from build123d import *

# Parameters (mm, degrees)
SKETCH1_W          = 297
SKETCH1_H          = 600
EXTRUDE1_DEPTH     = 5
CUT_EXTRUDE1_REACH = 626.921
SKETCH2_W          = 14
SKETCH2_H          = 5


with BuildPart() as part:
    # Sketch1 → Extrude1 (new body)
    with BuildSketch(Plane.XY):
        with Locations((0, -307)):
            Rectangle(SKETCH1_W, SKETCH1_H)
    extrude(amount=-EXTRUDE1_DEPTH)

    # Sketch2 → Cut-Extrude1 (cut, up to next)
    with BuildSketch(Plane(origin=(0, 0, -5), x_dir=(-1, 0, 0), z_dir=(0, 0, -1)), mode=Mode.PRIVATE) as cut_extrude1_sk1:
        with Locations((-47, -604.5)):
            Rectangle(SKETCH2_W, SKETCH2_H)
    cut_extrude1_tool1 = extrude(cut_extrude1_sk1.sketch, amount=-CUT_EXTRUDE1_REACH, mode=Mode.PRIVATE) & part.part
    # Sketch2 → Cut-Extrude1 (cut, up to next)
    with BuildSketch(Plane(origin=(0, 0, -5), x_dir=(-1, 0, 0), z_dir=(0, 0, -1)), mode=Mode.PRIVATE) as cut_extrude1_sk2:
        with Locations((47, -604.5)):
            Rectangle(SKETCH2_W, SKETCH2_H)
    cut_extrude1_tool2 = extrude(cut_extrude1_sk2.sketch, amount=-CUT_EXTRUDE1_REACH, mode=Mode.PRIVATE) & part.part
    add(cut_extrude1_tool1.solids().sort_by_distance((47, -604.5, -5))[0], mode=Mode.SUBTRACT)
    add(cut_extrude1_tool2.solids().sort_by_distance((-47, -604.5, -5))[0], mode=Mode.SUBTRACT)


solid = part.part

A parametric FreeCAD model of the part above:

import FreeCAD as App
import Part
import Sketcher

V = App.Vector

doc = App.newDocument("Part")
body = doc.addObject("PartDesign::Body", "Body")

# Sketch on XY plane
sketch1 = body.newObject("Sketcher::SketchObject", "Sketch")
sketch1.AttachmentSupport = (doc.getObject("XY_Plane"), [""])
sketch1.MapMode = "FlatFace"
sketch1.addGeometry(Part.LineSegment(V(-148.5, -7, 0), V(-148.5, -607, 0)), False)
sketch1.addGeometry(Part.LineSegment(V(-148.5, -607, 0), V(148.5, -607, 0)), False)
sketch1.addGeometry(Part.LineSegment(V(148.5, -607, 0), V(148.5, -7, 0)), False)
sketch1.addGeometry(Part.LineSegment(V(148.5, -7, 0), V(-148.5, -7, 0)), False)
sketch1.addConstraint(Sketcher.Constraint("Coincident", 0, 2, 1, 1))
sketch1.addConstraint(Sketcher.Constraint("Coincident", 1, 2, 2, 1))
sketch1.addConstraint(Sketcher.Constraint("Coincident", 2, 2, 3, 1))
sketch1.addConstraint(Sketcher.Constraint("Coincident", 3, 2, 0, 1))
sketch1.addConstraint(Sketcher.Constraint("Vertical", 0))
sketch1.addConstraint(Sketcher.Constraint("Horizontal", 1))
sketch1.addConstraint(Sketcher.Constraint("Vertical", 2))
sketch1.addConstraint(Sketcher.Constraint("Horizontal", 3))
sketch1.addConstraint(Sketcher.Constraint("DistanceX", 1, 1, 1, 2, 297.0))
sketch1.addConstraint(Sketcher.Constraint("DistanceY", 0, 2, 0, 1, 600.0))
sketch1.addConstraint(Sketcher.Constraint("DistanceY", 0, 2, -1, 1, 607.0))
sketch1.addConstraint(Sketcher.Constraint("DistanceX", 0, 2, -1, 1, 148.5))
pad1 = body.newObject("PartDesign::Pad", "Pad")
pad1.Profile = sketch1
pad1.Length = 5
pad1.Reversed = True

# Sketch on XY plane
sketch2 = body.newObject("Sketcher::SketchObject", "Sketch001")
sketch2.AttachmentSupport = (doc.getObject("XY_Plane"), [""])
sketch2.MapMode = "FlatFace"
sketch2.AttachmentOffset = App.Placement(V(0, 0, -5), App.Rotation())
sketch2.addGeometry(Part.LineSegment(V(54, -602, 0), V(54, -607, 0)), False)
sketch2.addGeometry(Part.LineSegment(V(54, -607, 0), V(40, -607, 0)), False)
sketch2.addGeometry(Part.LineSegment(V(40, -607, 0), V(40, -602, 0)), False)
sketch2.addGeometry(Part.LineSegment(V(40, -602, 0), V(54, -602, 0)), False)
sketch2.addConstraint(Sketcher.Constraint("Coincident", 0, 2, 1, 1))
sketch2.addConstraint(Sketcher.Constraint("Coincident", 1, 2, 2, 1))
sketch2.addConstraint(Sketcher.Constraint("Coincident", 2, 2, 3, 1))
sketch2.addConstraint(Sketcher.Constraint("Coincident", 3, 2, 0, 1))
sketch2.addConstraint(Sketcher.Constraint("Vertical", 0))
sketch2.addConstraint(Sketcher.Constraint("Horizontal", 1))
sketch2.addConstraint(Sketcher.Constraint("Vertical", 2))
sketch2.addConstraint(Sketcher.Constraint("Horizontal", 3))
sketch2.addConstraint(Sketcher.Constraint("DistanceX", 1, 2, 1, 1, 14.0))
sketch2.addConstraint(Sketcher.Constraint("DistanceY", 0, 2, 0, 1, 5.0))
sketch2.addConstraint(Sketcher.Constraint("DistanceX", -1, 1, 0, 2, 54.0))
sketch2.addConstraint(Sketcher.Constraint("DistanceY", 0, 2, -1, 1, 607.0))
pocket1 = body.newObject("PartDesign::Pocket", "Pocket")
pocket1.Profile = sketch2
pocket1.Type = "UpToFirst"
pocket1.Reversed = True

# Sketch on XY plane
sketch3 = body.newObject("Sketcher::SketchObject", "Sketch002")
sketch3.AttachmentSupport = (doc.getObject("XY_Plane"), [""])
sketch3.MapMode = "FlatFace"
sketch3.AttachmentOffset = App.Placement(V(0, 0, -5), App.Rotation())
sketch3.addGeometry(Part.LineSegment(V(-40, -602, 0), V(-40, -607, 0)), False)
sketch3.addGeometry(Part.LineSegment(V(-40, -607, 0), V(-54, -607, 0)), False)
sketch3.addGeometry(Part.LineSegment(V(-54, -607, 0), V(-54, -602, 0)), False)
sketch3.addGeometry(Part.LineSegment(V(-54, -602, 0), V(-40, -602, 0)), False)
sketch3.addConstraint(Sketcher.Constraint("Coincident", 0, 2, 1, 1))
sketch3.addConstraint(Sketcher.Constraint("Coincident", 1, 2, 2, 1))
sketch3.addConstraint(Sketcher.Constraint("Coincident", 2, 2, 3, 1))
sketch3.addConstraint(Sketcher.Constraint("Coincident", 3, 2, 0, 1))
sketch3.addConstraint(Sketcher.Constraint("Vertical", 0))
sketch3.addConstraint(Sketcher.Constraint("Horizontal", 1))
sketch3.addConstraint(Sketcher.Constraint("Vertical", 2))
sketch3.addConstraint(Sketcher.Constraint("Horizontal", 3))
sketch3.addConstraint(Sketcher.Constraint("DistanceX", 1, 2, 1, 1, 14.0))
sketch3.addConstraint(Sketcher.Constraint("DistanceY", 0, 2, 0, 1, 5.0))
sketch3.addConstraint(Sketcher.Constraint("DistanceX", 0, 2, -1, 1, 40.0))
sketch3.addConstraint(Sketcher.Constraint("DistanceY", 0, 2, -1, 1, 607.0))
pocket2 = body.newObject("PartDesign::Pocket", "Pocket001")
pocket2.Profile = sketch3
pocket2.Type = "UpToFirst"
pocket2.Reversed = True

doc.recompute()
